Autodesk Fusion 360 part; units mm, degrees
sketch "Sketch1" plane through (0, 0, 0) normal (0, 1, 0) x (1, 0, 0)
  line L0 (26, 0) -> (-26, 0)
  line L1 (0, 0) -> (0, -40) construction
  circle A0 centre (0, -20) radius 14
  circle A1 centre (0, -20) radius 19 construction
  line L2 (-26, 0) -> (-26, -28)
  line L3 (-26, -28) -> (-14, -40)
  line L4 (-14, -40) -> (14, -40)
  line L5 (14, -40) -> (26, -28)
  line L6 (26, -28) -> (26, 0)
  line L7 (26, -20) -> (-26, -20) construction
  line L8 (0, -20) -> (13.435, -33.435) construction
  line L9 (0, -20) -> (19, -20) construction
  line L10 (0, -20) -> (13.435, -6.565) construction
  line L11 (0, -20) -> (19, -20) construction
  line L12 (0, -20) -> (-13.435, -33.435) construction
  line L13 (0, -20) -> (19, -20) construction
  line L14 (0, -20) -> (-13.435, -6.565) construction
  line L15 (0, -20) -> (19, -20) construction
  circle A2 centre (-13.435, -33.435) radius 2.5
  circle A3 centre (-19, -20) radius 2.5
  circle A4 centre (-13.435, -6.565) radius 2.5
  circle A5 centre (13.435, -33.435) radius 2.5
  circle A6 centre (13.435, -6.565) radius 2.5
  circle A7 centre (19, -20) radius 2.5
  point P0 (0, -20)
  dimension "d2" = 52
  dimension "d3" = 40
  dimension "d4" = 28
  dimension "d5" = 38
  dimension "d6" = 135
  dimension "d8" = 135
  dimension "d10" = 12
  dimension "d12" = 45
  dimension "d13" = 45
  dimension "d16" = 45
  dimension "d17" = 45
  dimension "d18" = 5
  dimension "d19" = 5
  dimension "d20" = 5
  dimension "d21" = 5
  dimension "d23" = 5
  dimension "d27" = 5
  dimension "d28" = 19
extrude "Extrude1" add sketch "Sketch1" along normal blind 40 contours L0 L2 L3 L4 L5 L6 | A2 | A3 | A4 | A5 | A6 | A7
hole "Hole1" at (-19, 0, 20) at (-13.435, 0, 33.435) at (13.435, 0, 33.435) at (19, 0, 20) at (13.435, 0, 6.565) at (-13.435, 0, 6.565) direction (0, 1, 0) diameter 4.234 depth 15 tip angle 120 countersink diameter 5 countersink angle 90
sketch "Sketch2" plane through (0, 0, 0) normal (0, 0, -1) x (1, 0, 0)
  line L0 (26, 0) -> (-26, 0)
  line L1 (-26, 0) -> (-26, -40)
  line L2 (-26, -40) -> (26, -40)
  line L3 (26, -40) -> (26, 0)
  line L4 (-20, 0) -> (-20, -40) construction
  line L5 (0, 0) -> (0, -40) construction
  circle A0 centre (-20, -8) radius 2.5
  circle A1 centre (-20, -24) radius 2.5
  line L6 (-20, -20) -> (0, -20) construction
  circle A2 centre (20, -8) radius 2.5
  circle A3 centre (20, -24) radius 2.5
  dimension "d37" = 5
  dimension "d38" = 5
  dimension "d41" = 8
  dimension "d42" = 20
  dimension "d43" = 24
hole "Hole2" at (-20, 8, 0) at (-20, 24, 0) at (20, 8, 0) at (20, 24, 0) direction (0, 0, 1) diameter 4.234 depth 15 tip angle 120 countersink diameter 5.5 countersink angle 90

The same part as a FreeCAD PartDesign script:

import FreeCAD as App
import Part
import Sketcher
Q = App.Units.Quantity


def add_polygon(sketch, points):
    """Adds a closed chain of lines whose ends are joined by coincident constraints."""
    first, n = sketch.GeometryCount, len(points)
    for a, b in zip(points, points[1:] + points[:1]):
        sketch.addGeometry(Part.LineSegment(App.Vector(*a, 0), App.Vector(*b, 0)), False)
    for i in range(n):
        sketch.addConstraint(Sketcher.Constraint("Coincident", first + i, 2, first + (i + 1) % n, 1))

doc = App.newDocument("Part")
params = doc.addObject("Spreadsheet::Sheet", "Params")
for row, (alias, value) in enumerate([
    ("sketch1_diameter", "28 mm"),
    ("sketch1_width", "52 mm"),
    ("sketch1_width2", "28 mm"),
    ("pad1_length", "40 mm"),
    ("hole_diameter", "4.234 mm"),
    ("hole_depth", "15 mm"),
    ("hole_csink_diameter", "5 mm"),
    ("hole2_diameter", "4.234 mm"),
    ("hole2_depth", "15 mm"),
    ("hole2_csink_diameter", "5.5 mm"),
], start=1):
    params.set(f"A{row}", alias)
    params.set(f"B{row}", "=" + value)
    params.setAlias(f"B{row}", alias)

body = doc.addObject("PartDesign::Body", "Body")

# Sketch on XZ plane
sketch1 = body.newObject("Sketcher::SketchObject", "Sketch")
sketch1.AttachmentSupport = (doc.getObject("XZ_Plane"), [""])
sketch1.MapMode = "FlatFace"
add_polygon(sketch1, [(26, 28), (26, 0), (-26, 0), (-26, 28), (-14, 40), (14, 40)])  # lines 0-5
sketch1.addGeometry(Part.Circle(App.Vector(0, 20, 0), App.Vector(0, 0, 1), 14), False)  # 6
sketch1.addConstraint(Sketcher.Constraint("Vertical", 0))
sketch1.addConstraint(Sketcher.Constraint("Horizontal", 1))
sketch1.addConstraint(Sketcher.Constraint("Vertical", 2))
sketch1.addConstraint(Sketcher.Constraint("Horizontal", 4))
sketch1.addConstraint(Sketcher.Constraint("Symmetric", 0, 2, 1, 2, -1, 1))
sketch1.addConstraint(Sketcher.Constraint("PointOnObject", 6, 3, -2))
sketch1.addConstraint(Sketcher.Constraint("Perpendicular", 3, 5))
sketch1.addConstraint(Sketcher.Constraint("Horizontal", 2, 2, 5, 2))
sketch1.addConstraint(Sketcher.Constraint("Equal", 4, 0))
sketch1.addConstraint(Sketcher.Constraint("Equal", 3, 5))
sketch1.addConstraint(Sketcher.Constraint("Diameter", 6, Q("28 mm")))
sketch1.addConstraint(Sketcher.Constraint("DistanceX", 1, 2, 1, 1, Q("52 mm")))
sketch1.addConstraint(Sketcher.Constraint("DistanceX", 4, 1, 4, 2, Q("28 mm")))
sketch1.addConstraint(Sketcher.Constraint("DistanceY", -1, 1, 6, 3, Q("20 mm")))
sketch1.setExpression("Constraints[16]", "Params.sketch1_diameter")
sketch1.setExpression("Constraints[17]", "Params.sketch1_width")
sketch1.setExpression("Constraints[18]", "Params.sketch1_width2")
pad1 = body.newObject("PartDesign::Pad", "Pad")
pad1.Profile = sketch1
pad1.setExpression("Length", "Params.pad1_length")
pad1.Reversed = True

# Sketch on XZ plane
sketch2 = body.newObject("Sketcher::SketchObject", "Sketch001")
sketch2.AttachmentSupport = (doc.getObject("XZ_Plane"), [""])
sketch2.MapMode = "FlatFace"
sketch2.addGeometry(Part.Circle(App.Vector(-19, 20, 0), App.Vector(0, 0, 1), 2.1), False)
sketch2.addGeometry(Part.Circle(App.Vector(-13.4, 33.4, 0), App.Vector(0, 0, 1), 2.1), False)
sketch2.addGeometry(Part.Circle(App.Vector(13.4, 33.4, 0), App.Vector(0, 0, 1), 2.1), False)
sketch2.addGeometry(Part.Circle(App.Vector(19, 20, 0), App.Vector(0, 0, 1), 2.1), False)
sketch2.addGeometry(Part.Circle(App.Vector(13.4, 6.6, 0), App.Vector(0, 0, 1), 2.1), False)
sketch2.addGeometry(Part.Circle(App.Vector(-13.4, 6.6, 0), App.Vector(0, 0, 1), 2.1), False)
sketch2.addConstraint(Sketcher.Constraint("Equal", 0, 1))
sketch2.addConstraint(Sketcher.Constraint("Equal", 1, 2))
sketch2.addConstraint(Sketcher.Constraint("Equal", 2, 3))
sketch2.addConstraint(Sketcher.Constraint("Equal", 3, 4))
sketch2.addConstraint(Sketcher.Constraint("Equal", 4, 5))
sketch2.addConstraint(Sketcher.Constraint("Symmetric", 1, 3, 2, 3, -2))
sketch2.addConstraint(Sketcher.Constraint("Symmetric", 0, 3, 3, 3, -2))
sketch2.addConstraint(Sketcher.Constraint("Symmetric", 4, 3, 5, 3, -2))
sketch2.addConstraint(Sketcher.Constraint("Vertical", 2, 3, 4, 3))
sketch2.addConstraint(Sketcher.Constraint("Diameter", 0, Q("4.234 mm")))
sketch2.addConstraint(Sketcher.Constraint("DistanceX", 0, 3, -1, 1, Q("19 mm")))
sketch2.addConstraint(Sketcher.Constraint("DistanceY", -1, 1, 0, 3, Q("20 mm")))
sketch2.addConstraint(Sketcher.Constraint("DistanceX", 1, 3, 2, 3, Q("26.87 mm")))
sketch2.addConstraint(Sketcher.Constraint("DistanceY", 4, 3, 2, 3, Q("26.87 mm")))
sketch2.addConstraint(Sketcher.Constraint("DistanceY", -1, 1, 1, 3, Q("33.435 mm")))
doc.recompute()
hole = body.newObject("PartDesign::Hole", "Hole")
hole.Profile = sketch2
hole.ThreadType = "None"
hole.setExpression("Diameter", "Params.hole_diameter")
hole.DepthType = "Dimension"
hole.setExpression("Depth", "Params.hole_depth")
hole.DrillPoint = "Angled"
hole.DrillPointAngle = 120
hole.HoleCutType = "Countersink"
hole.setExpression("HoleCutDiameter", "Params.hole_csink_diameter")
hole.HoleCutCountersinkAngle = 90

# Sketch on XY plane
sketch3 = body.newObject("Sketcher::SketchObject", "Sketch002")
sketch3.AttachmentSupport = (doc.getObject("XY_Plane"), [""])
sketch3.MapMode = "FlatFace"
sketch3.addGeometry(Part.Circle(App.Vector(-20, 8, 0), App.Vector(0, 0, 1), 2.1), False)
sketch3.addGeometry(Part.Circle(App.Vector(-20, 24, 0), App.Vector(0, 0, 1), 2.1), False)
sketch3.addGeometry(Part.Circle(App.Vector(20, 8, 0), App.Vector(0, 0, 1), 2.1), False)
sketch3.addGeometry(Part.Circle(App.Vector(20, 24, 0), App.Vector(0, 0, 1), 2.1), False)
sketch3.addConstraint(Sketcher.Constraint("Equal", 0, 1))
sketch3.addConstraint(Sketcher.Constraint("Equal", 1, 2))
sketch3.addConstraint(Sketcher.Constraint("Equal", 2, 3))
sketch3.addConstraint(Sketcher.Constraint("Symmetric", 0, 3, 2, 3, -2))
sketch3.addConstraint(Sketcher.Constraint("Symmetric", 1, 3, 3, 3, -2))
sketch3.addConstraint(Sketcher.Constraint("Vertical", 0, 3, 1, 3))
sketch3.addConstraint(Sketcher.Constraint("Diameter", 0, Q("4.234 mm")))
sketch3.addConstraint(Sketcher.Constraint("DistanceX", 0, 3, -1, 1, Q("20 mm")))
sketch3.addConstraint(Sketcher.Constraint("DistanceY", -1, 1, 0, 3, Q("8 mm")))
sketch3.addConstraint(Sketcher.Constraint("DistanceY", -1, 1, 1, 3, Q("24 mm")))
doc.recompute()
hole2 = body.newObject("PartDesign::Hole", "Hole001")
hole2.Profile = sketch3
hole2.ThreadType = "None"
hole2.setExpression("Diameter", "Params.hole2_diameter")
hole2.DepthType = "Dimension"
hole2.setExpression("Depth", "Params.hole2_depth")
hole2.DrillPoint = "Angled"
hole2.DrillPointAngle = 120
hole2.HoleCutType = "Countersink"
hole2.setExpression("HoleCutDiameter", "Params.hole2_csink_diameter")
hole2.HoleCutCountersinkAngle = 90
hole2.Reversed = True

doc.recompute()
